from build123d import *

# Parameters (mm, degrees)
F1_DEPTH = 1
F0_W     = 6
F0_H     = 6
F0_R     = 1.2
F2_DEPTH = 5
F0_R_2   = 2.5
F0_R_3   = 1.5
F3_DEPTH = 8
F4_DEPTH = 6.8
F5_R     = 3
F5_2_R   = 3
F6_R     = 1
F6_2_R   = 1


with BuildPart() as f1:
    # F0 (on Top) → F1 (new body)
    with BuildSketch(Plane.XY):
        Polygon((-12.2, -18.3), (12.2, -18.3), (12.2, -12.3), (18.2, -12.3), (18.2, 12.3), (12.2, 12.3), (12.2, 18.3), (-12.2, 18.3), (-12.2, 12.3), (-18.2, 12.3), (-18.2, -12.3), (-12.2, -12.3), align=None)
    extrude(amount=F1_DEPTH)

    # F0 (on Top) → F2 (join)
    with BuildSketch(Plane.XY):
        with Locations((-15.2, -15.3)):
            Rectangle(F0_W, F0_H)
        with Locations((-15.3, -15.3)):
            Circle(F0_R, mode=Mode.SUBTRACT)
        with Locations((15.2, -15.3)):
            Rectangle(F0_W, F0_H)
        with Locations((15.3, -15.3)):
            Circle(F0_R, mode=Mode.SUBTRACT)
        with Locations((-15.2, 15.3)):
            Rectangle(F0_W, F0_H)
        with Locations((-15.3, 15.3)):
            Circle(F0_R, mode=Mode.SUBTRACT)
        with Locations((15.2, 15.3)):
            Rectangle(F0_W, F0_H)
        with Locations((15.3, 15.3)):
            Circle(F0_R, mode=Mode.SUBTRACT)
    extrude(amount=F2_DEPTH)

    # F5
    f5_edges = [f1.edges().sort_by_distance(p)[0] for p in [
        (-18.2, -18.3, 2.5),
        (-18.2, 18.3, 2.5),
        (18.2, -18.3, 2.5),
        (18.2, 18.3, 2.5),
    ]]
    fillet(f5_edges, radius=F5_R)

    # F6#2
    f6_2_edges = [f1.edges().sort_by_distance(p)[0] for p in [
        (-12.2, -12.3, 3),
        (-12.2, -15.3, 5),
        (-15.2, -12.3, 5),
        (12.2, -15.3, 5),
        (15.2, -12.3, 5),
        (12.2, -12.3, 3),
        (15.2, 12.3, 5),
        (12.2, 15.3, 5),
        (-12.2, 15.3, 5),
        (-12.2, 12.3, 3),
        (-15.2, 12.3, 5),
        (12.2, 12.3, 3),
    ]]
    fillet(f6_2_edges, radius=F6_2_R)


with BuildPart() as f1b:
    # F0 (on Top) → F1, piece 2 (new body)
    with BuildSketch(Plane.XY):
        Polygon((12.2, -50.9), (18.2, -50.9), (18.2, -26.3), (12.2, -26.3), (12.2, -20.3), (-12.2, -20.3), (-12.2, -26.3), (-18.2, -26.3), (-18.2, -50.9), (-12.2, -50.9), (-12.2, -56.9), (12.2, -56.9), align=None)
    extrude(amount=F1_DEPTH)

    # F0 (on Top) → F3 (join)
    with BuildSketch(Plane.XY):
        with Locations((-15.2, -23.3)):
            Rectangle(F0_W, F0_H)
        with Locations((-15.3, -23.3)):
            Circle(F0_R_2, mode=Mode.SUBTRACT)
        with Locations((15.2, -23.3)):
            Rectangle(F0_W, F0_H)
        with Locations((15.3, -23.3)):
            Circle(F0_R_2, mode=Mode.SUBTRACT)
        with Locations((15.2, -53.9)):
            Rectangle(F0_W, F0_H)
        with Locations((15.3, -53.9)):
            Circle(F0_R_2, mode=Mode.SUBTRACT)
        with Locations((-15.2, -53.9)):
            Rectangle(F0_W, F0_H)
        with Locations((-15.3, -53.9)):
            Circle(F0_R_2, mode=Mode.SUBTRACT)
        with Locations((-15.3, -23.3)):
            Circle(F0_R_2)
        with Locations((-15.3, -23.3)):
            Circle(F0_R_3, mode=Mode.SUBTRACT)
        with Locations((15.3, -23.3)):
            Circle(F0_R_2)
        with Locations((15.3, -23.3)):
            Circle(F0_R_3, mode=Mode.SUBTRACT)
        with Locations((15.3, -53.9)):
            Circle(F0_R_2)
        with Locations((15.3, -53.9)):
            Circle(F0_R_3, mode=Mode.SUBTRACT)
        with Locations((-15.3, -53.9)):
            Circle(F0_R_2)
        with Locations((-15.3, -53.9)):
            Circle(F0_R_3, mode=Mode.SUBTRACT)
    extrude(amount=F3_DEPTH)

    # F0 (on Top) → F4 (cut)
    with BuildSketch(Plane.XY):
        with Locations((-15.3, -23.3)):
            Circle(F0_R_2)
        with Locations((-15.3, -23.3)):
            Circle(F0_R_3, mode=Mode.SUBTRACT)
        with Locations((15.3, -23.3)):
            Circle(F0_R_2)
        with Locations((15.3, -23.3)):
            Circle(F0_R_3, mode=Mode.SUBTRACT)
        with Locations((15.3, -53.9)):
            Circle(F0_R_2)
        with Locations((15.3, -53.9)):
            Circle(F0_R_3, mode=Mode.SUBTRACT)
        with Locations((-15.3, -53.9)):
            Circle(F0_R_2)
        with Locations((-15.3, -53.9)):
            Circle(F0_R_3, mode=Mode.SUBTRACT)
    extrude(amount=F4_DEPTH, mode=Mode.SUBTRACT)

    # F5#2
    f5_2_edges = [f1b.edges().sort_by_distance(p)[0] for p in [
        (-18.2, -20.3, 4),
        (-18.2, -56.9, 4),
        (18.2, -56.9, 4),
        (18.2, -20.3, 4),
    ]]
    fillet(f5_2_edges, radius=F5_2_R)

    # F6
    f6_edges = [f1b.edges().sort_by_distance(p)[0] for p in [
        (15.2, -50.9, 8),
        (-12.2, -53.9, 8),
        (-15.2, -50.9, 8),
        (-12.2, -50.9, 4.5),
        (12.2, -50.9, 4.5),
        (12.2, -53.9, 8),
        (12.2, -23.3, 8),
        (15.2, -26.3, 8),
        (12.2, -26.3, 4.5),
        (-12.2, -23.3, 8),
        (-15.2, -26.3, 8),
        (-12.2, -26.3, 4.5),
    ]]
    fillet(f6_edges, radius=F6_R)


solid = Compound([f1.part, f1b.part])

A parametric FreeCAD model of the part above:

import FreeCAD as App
import Part
import Sketcher
from FreeCAD import Vector
Q = App.Units.Quantity


def edges_at(feature, points):
    """Names of the edges that pass closest to the given points."""
    edges = feature.Shape.Edges
    near = lambda p: min(range(len(edges)), key=lambda i: edges[i].distToShape(Part.Vertex(*p))[0])
    return sorted({f"Edge{near(p) + 1}" for p in points})

doc = App.newDocument("Part")
body = doc.addObject("PartDesign::Body", "Body")

# Sketch on XY plane
sketch1 = body.newObject("Sketcher::SketchObject", "Sketch")
sketch1.AttachmentSupport = (doc.getObject("XY_Plane"), [""])
sketch1.MapMode = "FlatFace"
sketch1.addGeometry(Part.LineSegment(Vector(-12, -18, 0), Vector(12, -18, 0)), False)
sketch1.addGeometry(Part.LineSegment(Vector(12, -18, 0), Vector(12, -12, 0)), False)
sketch1.addGeometry(Part.LineSegment(Vector(12, -12, 0), Vector(18, -12, 0)), False)
sketch1.addGeometry(Part.LineSegment(Vector(18, -12, 0), Vector(18, 12, 0)), False)
sketch1.addGeometry(Part.LineSegment(Vector(18, 12, 0), Vector(12, 12, 0)), False)
sketch1.addGeometry(Part.LineSegment(Vector(12, 12, 0), Vector(12, 18, 0)), False)
sketch1.addGeometry(Part.LineSegment(Vector(12, 18, 0), Vector(-12, 18, 0)), False)
sketch1.addGeometry(Part.LineSegment(Vector(-12, 18, 0), Vector(-12, 12, 0)), False)
sketch1.addGeometry(Part.LineSegment(Vector(-12, 12, 0), Vector(-18, 12, 0)), False)
sketch1.addGeometry(Part.LineSegment(Vector(-18, 12, 0), Vector(-18, -12, 0)), False)
sketch1.addGeometry(Part.LineSegment(Vector(-18, -12, 0), Vector(-12, -12, 0)), False)
sketch1.addGeometry(Part.LineSegment(Vector(-12, -12, 0), Vector(-12, -18, 0)), False)
sketch1.addConstraint(Sketcher.Constraint("Coincident", 0, 2, 1, 1))
sketch1.addConstraint(Sketcher.Constraint("Coincident", 1, 2, 2, 1))
sketch1.addConstraint(Sketcher.Constraint("Coincident", 2, 2, 3, 1))
sketch1.addConstraint(Sketcher.Constraint("Coincident", 3, 2, 4, 1))
sketch1.addConstraint(Sketcher.Constraint("Coincident", 4, 2, 5, 1))
sketch1.addConstraint(Sketcher.Constraint("Coincident", 5, 2, 6, 1))
sketch1.addConstraint(Sketcher.Constraint("Coincident", 6, 2, 7, 1))
sketch1.addConstraint(Sketcher.Constraint("Coincident", 7, 2, 8, 1))
sketch1.addConstraint(Sketcher.Constraint("Coincident", 8, 2, 9, 1))
sketch1.addConstraint(Sketcher.Constraint("Coincident", 9, 2, 10, 1))
sketch1.addConstraint(Sketcher.Constraint("Coincident", 10, 2, 11, 1))
sketch1.addConstraint(Sketcher.Constraint("Coincident", 11, 2, 0, 1))
sketch1.addConstraint(Sketcher.Constraint("Horizontal", 0))
sketch1.addConstraint(Sketcher.Constraint("Vertical", 1))
sketch1.addConstraint(Sketcher.Constraint("Horizontal", 2))
sketch1.addConstraint(Sketcher.Constraint("Vertical", 3))
sketch1.addConstraint(Sketcher.Constraint("Horizontal", 4))
sketch1.addConstraint(Sketcher.Constraint("Vertical", 5))
sketch1.addConstraint(Sketcher.Constraint("Horizontal", 6))
sketch1.addConstraint(Sketcher.Constraint("Vertical", 7))
sketch1.addConstraint(Sketcher.Constraint("Horizontal", 8))
sketch1.addConstraint(Sketcher.Constraint("Vertical", 9))
sketch1.addConstraint(Sketcher.Constraint("Horizontal", 10))
sketch1.addConstraint(Sketcher.Constraint("Vertical", 11))
sketch1.addConstraint(Sketcher.Constraint("Symmetric", 0, 2, 6, 2, -1, 1))
sketch1.addConstraint(Sketcher.Constraint("Symmetric", 2, 2, 8, 2, -1, 1))
sketch1.addConstraint(Sketcher.Constraint("Symmetric", 4, 2, 10, 2, -1, 1))
sketch1.addConstraint(Sketcher.Constraint("Symmetric", 4, 2, 7, 2, -2))
sketch1.addConstraint(Sketcher.Constraint("Equal", 10, 1))
sketch1.addConstraint(Sketcher.Constraint("DistanceX", 2, 1, 2, 2, Q("6 mm")))
sketch1.addConstraint(Sketcher.Constraint("DistanceX", 0, 1, 0, 2, Q("24.4 mm")))
sketch1.addConstraint(Sketcher.Constraint("DistanceY", 3, 1, 3, 2, Q("24.6 mm")))
pad1 = body.newObject("PartDesign::Pad", "Pad")
pad1.Profile = sketch1
pad1.Length = 1

# Sketch on XY plane
sketch2 = body.newObject("Sketcher::SketchObject", "Sketch001")
sketch2.AttachmentSupport = (doc.getObject("XY_Plane"), [""])
sketch2.MapMode = "FlatFace"
sketch2.addGeometry(Part.LineSegment(Vector(-18.2, -12.3, 0), Vector(-18.2, -18.3, 0)), False)
sketch2.addGeometry(Part.LineSegment(Vector(-18.2, -18.3, 0), Vector(-12.2, -18.3, 0)), False)
sketch2.addGeometry(Part.LineSegment(Vector(-12.2, -18.3, 0), Vector(-12.2, -12.3, 0)), False)
sketch2.addGeometry(Part.LineSegment(Vector(-12.2, -12.3, 0), Vector(-18.2, -12.3, 0)), False)
sketch2.addGeometry(Part.Circle(Vector(-15.3, -15.3, 0), Vector(0, 0, 1), 1.2), False)
sketch2.addGeometry(Part.LineSegment(Vector(12.2, -12.3, 0), Vector(12.2, -18.3, 0)), False)
sketch2.addGeometry(Part.LineSegment(Vector(12.2, -18.3, 0), Vector(18.2, -18.3, 0)), False)
sketch2.addGeometry(Part.LineSegment(Vector(18.2, -18.3, 0), Vector(18.2, -12.3, 0)), False)
sketch2.addGeometry(Part.LineSegment(Vector(18.2, -12.3, 0), Vector(12.2, -12.3, 0)), False)
sketch2.addGeometry(Part.Circle(Vector(15.3, -15.3, 0), Vector(0, 0, 1), 1.2), False)
sketch2.addGeometry(Part.LineSegment(Vector(-18.2, 18.3, 0), Vector(-18.2, 12.3, 0)), False)
sketch2.addGeometry(Part.LineSegment(Vector(-18.2, 12.3, 0), Vector(-12.2, 12.3, 0)), False)
sketch2.addGeometry(Part.LineSegment(Vector(-12.2, 12.3, 0), Vector(-12.2, 18.3, 0)), False)
sketch2.addGeometry(Part.LineSegment(Vector(-12.2, 18.3, 0), Vector(-18.2, 18.3, 0)), False)
sketch2.addGeometry(Part.Circle(Vector(-15.3, 15.3, 0), Vector(0, 0, 1), 1.2), False)
sketch2.addGeometry(Part.LineSegment(Vector(12.2, 18.3, 0), Vector(12.2, 12.3, 0)), False)
sketch2.addGeometry(Part.LineSegment(Vector(12.2, 12.3, 0), Vector(18.2, 12.3, 0)), False)
sketch2.addGeometry(Part.LineSegment(Vector(18.2, 12.3, 0), Vector(18.2, 18.3, 0)), False)
sketch2.addGeometry(Part.LineSegment(Vector(18.2, 18.3, 0), Vector(12.2, 18.3, 0)), False)
sketch2.addGeometry(Part.Circle(Vector(15.3, 15.3, 0), Vector(0, 0, 1), 1.2), False)
sketch2.addConstraint(Sketcher.Constraint("Coincident", 0, 2, 1, 1))
sketch2.addConstraint(Sketcher.Constraint("Coincident", 1, 2, 2, 1))
sketch2.addConstraint(Sketcher.Constraint("Coincident", 2, 2, 3, 1))
sketch2.addConstraint(Sketcher.Constraint("Coincident", 3, 2, 0, 1))
sketch2.addConstraint(Sketcher.Constraint("Coincident", 5, 2, 6, 1))
sketch2.addConstraint(Sketcher.Constraint("Coincident", 6, 2, 7, 1))
sketch2.addConstraint(Sketcher.Constraint("Coincident", 7, 2, 8, 1))
sketch2.addConstraint(Sketcher.Constraint("Coincident", 8, 2, 5, 1))
sketch2.addConstraint(Sketcher.Constraint("Coincident", 10, 2, 11, 1))
sketch2.addConstraint(Sketcher.Constraint("Coincident", 11, 2, 12, 1))
sketch2.addConstraint(Sketcher.Constraint("Coincident", 12, 2, 13, 1))
sketch2.addConstraint(Sketcher.Constraint("Coincident", 13, 2, 10, 1))
sketch2.addConstraint(Sketcher.Constraint("Coincident", 15, 2, 16, 1))
sketch2.addConstraint(Sketcher.Constraint("Coincident", 16, 2, 17, 1))
sketch2.addConstraint(Sketcher.Constraint("Coincident", 17, 2, 18, 1))
sketch2.addConstraint(Sketcher.Constraint("Coincident", 18, 2, 15, 1))
sketch2.addConstraint(Sketcher.Constraint("Vertical", 0))
sketch2.addConstraint(Sketcher.Constraint("Horizontal", 1))
sketch2.addConstraint(Sketcher.Constraint("Vertical", 2))
sketch2.addConstraint(Sketcher.Constraint("Horizontal", 3))
sketch2.addConstraint(Sketcher.Constraint("Vertical", 5))
sketch2.addConstraint(Sketcher.Constraint("Horizontal", 6))
sketch2.addConstraint(Sketcher.Constraint("Vertical", 7))
sketch2.addConstraint(Sketcher.Constraint("Horizontal", 8))
sketch2.addConstraint(Sketcher.Constraint("Vertical", 10))
sketch2.addConstraint(Sketcher.Constraint("Horizontal", 11))
sketch2.addConstraint(Sketcher.Constraint("Vertical", 12))
sketch2.addConstraint(Sketcher.Constraint("Horizontal", 13))
sketch2.addConstraint(Sketcher.Constraint("Vertical", 15))
sketch2.addConstraint(Sketcher.Constraint("Horizontal", 16))
sketch2.addConstraint(Sketcher.Constraint("Vertical", 17))
sketch2.addConstraint(Sketcher.Constraint("Horizontal", 18))
sketch2.addConstraint(Sketcher.Constraint("Equal", 4, 9))
sketch2.addConstraint(Sketcher.Constraint("Equal", 9, 14))
sketch2.addConstraint(Sketcher.Constraint("Equal", 14, 19))
sketch2.addConstraint(Sketcher.Constraint("Symmetric", 9, 3, 14, 3, -1, 1))
sketch2.addConstraint(Sketcher.Constraint("Symmetric", 4, 3, 19, 3, -1, 1))
sketch2.addConstraint(Sketcher.Constraint("Symmetric", 7, 2, 10, 2, -1, 1))
sketch2.addConstraint(Sketcher.Constraint("Symmetric", 5, 2, 12, 2, -1, 1))
sketch2.addConstraint(Sketcher.Constraint("Symmetric", 2, 2, 15, 2, -1, 1))
sketch2.addConstraint(Sketcher.Constraint("Symmetric", 0, 2, 17, 2, -1, 1))
sketch2.addConstraint(Sketcher.Constraint("Symmetric", 4, 3, 9, 3, -2))
sketch2.addConstraint(Sketcher.Constraint("Symmetric", 1, 2, 5, 2, -2))
sketch2.addConstraint(Sketcher.Constraint("Symmetric", 3, 2, 7, 2, -2))
sketch2.addConstraint(Sketcher.Constraint("Equal", 18, 0))
sketch2.addConstraint(Sketcher.Constraint("Diameter", 4, Q("2.4 mm")))
sketch2.addConstraint(Sketcher.Constraint("DistanceX", 1, 1, 1, 2, Q("6 mm")))
sketch2.addConstraint(Sketcher.Constraint("DistanceY", 0, 2, 4, 3, Q("3 mm")))
sketch2.addConstraint(Sketcher.Constraint("DistanceX", 4, 3, -1, 1, Q("15.3 mm")))
sketch2.addConstraint(Sketcher.Constraint("DistanceY", 4, 3, -1, 1, Q("15.3 mm")))
sketch2.addConstraint(Sketcher.Constraint("DistanceX", 0, 2, -1, 1, Q("18.2 mm")))
pad2 = body.newObject("PartDesign::Pad", "Pad001")
pad2.Profile = sketch2
pad2.Length = 5
doc.recompute()

fillet = body.newObject("PartDesign::Fillet", "Fillet")
fillet.Base = (pad2, edges_at(pad2, [
    (-18.2, -18.3, 2.5),
    (-18.2, 18.3, 2.5),
    (18.2, -18.3, 2.5),
    (18.2, 18.3, 2.5),
]))
fillet.Radius = 3
doc.recompute()

fillet2 = body.newObject("PartDesign::Fillet", "Fillet001")
fillet2.Base = (fillet, edges_at(fillet, [
    (-12.2, -12.3, 3),
    (-12.2, -15.3, 5),
    (-15.2, -12.3, 5),
    (12.2, -15.3, 5),
    (15.2, -12.3, 5),
    (12.2, -12.3, 3),
    (15.2, 12.3, 5),
    (12.2, 15.3, 5),
    (-12.2, 15.3, 5),
    (-12.2, 12.3, 3),
    (-15.2, 12.3, 5),
    (12.2, 12.3, 3),
]))
fillet2.Radius = 1
body2 = doc.addObject("PartDesign::Body", "Body001")

# Sketch on XY plane
sketch3 = body2.newObject("Sketcher::SketchObject", "Sketch002")
sketch3.AttachmentSupport = (doc.getObject("XY_Plane001"), [""])
sketch3.MapMode = "FlatFace"
sketch3.addGeometry(Part.LineSegment(Vector(12, -51, 0), Vector(18, -51, 0)), False)
sketch3.addGeometry(Part.LineSegment(Vector(18, -51, 0), Vector(18, -26, 0)), False)
sketch3.addGeometry(Part.LineSegment(Vector(18, -26, 0), Vector(12, -26, 0)), False)
sketch3.addGeometry(Part.LineSegment(Vector(12, -26, 0), Vector(12, -20, 0)), False)
sketch3.addGeometry(Part.LineSegment(Vector(12, -20, 0), Vector(-12, -20, 0)), False)
sketch3.addGeometry(Part.LineSegment(Vector(-12, -20, 0), Vector(-12, -26, 0)), False)
sketch3.addGeometry(Part.LineSegment(Vector(-12, -26, 0), Vector(-18, -26, 0)), False)
sketch3.addGeometry(Part.LineSegment(Vector(-18, -26, 0), Vector(-18, -51, 0)), False)
sketch3.addGeometry(Part.LineSegment(Vector(-18, -51, 0), Vector(-12, -51, 0)), False)
sketch3.addGeometry(Part.LineSegment(Vector(-12, -51, 0), Vector(-12, -57, 0)), False)
sketch3.addGeometry(Part.LineSegment(Vector(-12, -57, 0), Vector(12, -57, 0)), False)
sketch3.addGeometry(Part.LineSegment(Vector(12, -57, 0), Vector(12, -51, 0)), False)
sketch3.addConstraint(Sketcher.Constraint("Coincident", 0, 2, 1, 1))
sketch3.addConstraint(Sketcher.Constraint("Coincident", 1, 2, 2, 1))
sketch3.addConstraint(Sketcher.Constraint("Coincident", 2, 2, 3, 1))
sketch3.addConstraint(Sketcher.Constraint("Coincident", 3, 2, 4, 1))
sketch3.addConstraint(Sketcher.Constraint("Coincident", 4, 2, 5, 1))
sketch3.addConstraint(Sketcher.Constraint("Coincident", 5, 2, 6, 1))
sketch3.addConstraint(Sketcher.Constraint("Coincident", 6, 2, 7, 1))
sketch3.addConstraint(Sketcher.Constraint("Coincident", 7, 2, 8, 1))
sketch3.addConstraint(Sketcher.Constraint("Coincident", 8, 2, 9, 1))
sketch3.addConstraint(Sketcher.Constraint("Coincident", 9, 2, 10, 1))
sketch3.addConstraint(Sketcher.Constraint("Coincident", 10, 2, 11, 1))
sketch3.addConstraint(Sketcher.Constraint("Coincident", 11, 2, 0, 1))
sketch3.addConstraint(Sketcher.Constraint("Horizontal", 0))
sketch3.addConstraint(Sketcher.Constraint("Vertical", 1))
sketch3.addConstraint(Sketcher.Constraint("Horizontal", 2))
sketch3.addConstraint(Sketcher.Constraint("Vertical", 3))
sketch3.addConstraint(Sketcher.Constraint("Horizontal", 4))
sketch3.addConstraint(Sketcher.Constraint("Vertical", 5))
sketch3.addConstraint(Sketcher.Constraint("Horizontal", 6))
sketch3.addConstraint(Sketcher.Constraint("Vertical", 7))
sketch3.addConstraint(Sketcher.Constraint("Horizontal", 8))
sketch3.addConstraint(Sketcher.Constraint("Vertical", 9))
sketch3.addConstraint(Sketcher.Constraint("Horizontal", 10))
sketch3.addConstraint(Sketcher.Constraint("Vertical", 11))
sketch3.addConstraint(Sketcher.Constraint("Symmetric", 2, 2, 5, 2, -2))
sketch3.addConstraint(Sketcher.Constraint("Symmetric", 0, 2, 7, 2, -2))
sketch3.addConstraint(Sketcher.Constraint("Vertical", 5, 2, 8, 2))
sketch3.addConstraint(Sketcher.Constraint("Vertical", 3, 2, 10, 2))
sketch3.addConstraint(Sketcher.Constraint("Equal", 8, 3))
sketch3.addConstraint(Sketcher.Constraint("Equal", 5, 9))
sketch3.addConstraint(Sketcher.Constraint("DistanceX", 0, 1, 0, 2, Q("6 mm")))
sketch3.addConstraint(Sketcher.Constraint("DistanceX", 4, 2, 4, 1, Q("24.4 mm")))
sketch3.addConstraint(Sketcher.Constraint("DistanceY", 1, 1, 1, 2, Q("24.6 mm")))
sketch3.addConstraint(Sketcher.Constraint("DistanceY", 0, 2, -1, 1, Q("50.9 mm")))
pad3 = body2.newObject("PartDesign::Pad", "Pad002")
pad3.Profile = sketch3
pad3.Length = 1

# Sketch on XY plane
sketch4 = body2.newObject("Sketcher::SketchObject", "Sketch003")
sketch4.AttachmentSupport = (doc.getObject("XY_Plane001"), [""])
sketch4.MapMode = "FlatFace"
sketch4.addGeometry(Part.LineSegment(Vector(-18.2, -20.3, 0), Vector(-18.2, -26.3, 0)), False)
sketch4.addGeometry(Part.LineSegment(Vector(-18.2, -26.3, 0), Vector(-12.2, -26.3, 0)), False)
sketch4.addGeometry(Part.LineSegment(Vector(-12.2, -26.3, 0), Vector(-12.2, -20.3, 0)), False)
sketch4.addGeometry(Part.LineSegment(Vector(-12.2, -20.3, 0), Vector(-18.2, -20.3, 0)), False)
sketch4.addGeometry(Part.Circle(Vector(-15.3, -23.3, 0), Vector(0, 0, 1), 1.5), False)
sketch4.addGeometry(Part.LineSegment(Vector(12.2, -20.3, 0), Vector(12.2, -26.3, 0)), False)
sketch4.addGeometry(Part.LineSegment(Vector(12.2, -26.3, 0), Vector(18.2, -26.3, 0)), False)
sketch4.addGeometry(Part.LineSegment(Vector(18.2, -26.3, 0), Vector(18.2, -20.3, 0)), False)
sketch4.addGeometry(Part.LineSegment(Vector(18.2, -20.3, 0), Vector(12.2, -20.3, 0)), False)
sketch4.addGeometry(Part.Circle(Vector(15.3, -23.3, 0), Vector(0, 0, 1), 1.5), False)
sketch4.addGeometry(Part.LineSegment(Vector(12.2, -50.9, 0), Vector(12.2, -56.9, 0)), False)
sketch4.addGeometry(Part.LineSegment(Vector(12.2, -56.9, 0), Vector(18.2, -56.9, 0)), False)
sketch4.addGeometry(Part.LineSegment(Vector(18.2, -56.9, 0), Vector(18.2, -50.9, 0)), False)
sketch4.addGeometry(Part.LineSegment(Vector(18.2, -50.9, 0), Vector(12.2, -50.9, 0)), False)
sketch4.addGeometry(Part.Circle(Vector(15.3, -53.9, 0), Vector(0, 0, 1), 1.5), False)
sketch4.addGeometry(Part.LineSegment(Vector(-18.2, -50.9, 0), Vector(-18.2, -56.9, 0)), False)
sketch4.addGeometry(Part.LineSegment(Vector(-18.2, -56.9, 0), Vector(-12.2, -56.9, 0)), False)
sketch4.addGeometry(Part.LineSegment(Vector(-12.2, -56.9, 0), Vector(-12.2, -50.9, 0)), False)
sketch4.addGeometry(Part.LineSegment(Vector(-12.2, -50.9, 0), Vector(-18.2, -50.9, 0)), False)
sketch4.addGeometry(Part.Circle(Vector(-15.3, -53.9, 0), Vector(0, 0, 1), 1.5), False)
sketch4.addConstraint(Sketcher.Constraint("Coincident", 0, 2, 1, 1))
sketch4.addConstraint(Sketcher.Constraint("Coincident", 1, 2, 2, 1))
sketch4.addConstraint(Sketcher.Constraint("Coincident", 2, 2, 3, 1))
sketch4.addConstraint(Sketcher.Constraint("Coincident", 3, 2, 0, 1))
sketch4.addConstraint(Sketcher.Constraint("Coincident", 5, 2, 6, 1))
sketch4.addConstraint(Sketcher.Constraint("Coincident", 6, 2, 7, 1))
sketch4.addConstraint(Sketcher.Constraint("Coincident", 7, 2, 8, 1))
sketch4.addConstraint(Sketcher.Constraint("Coincident", 8, 2, 5, 1))
sketch4.addConstraint(Sketcher.Constraint("Coincident", 10, 2, 11, 1))
sketch4.addConstraint(Sketcher.Constraint("Coincident", 11, 2, 12, 1))
sketch4.addConstraint(Sketcher.Constraint("Coincident", 12, 2, 13, 1))
sketch4.addConstraint(Sketcher.Constraint("Coincident", 13, 2, 10, 1))
sketch4.addConstraint(Sketcher.Constraint("Coincident", 15, 2, 16, 1))
sketch4.addConstraint(Sketcher.Constraint("Coincident", 16, 2, 17, 1))
sketch4.addConstraint(Sketcher.Constraint("Coincident", 17, 2, 18, 1))
sketch4.addConstraint(Sketcher.Constraint("Coincident", 18, 2, 15, 1))
sketch4.addConstraint(Sketcher.Constraint("Vertical", 0))
sketch4.addConstraint(Sketcher.Constraint("Horizontal", 1))
sketch4.addConstraint(Sketcher.Constraint("Vertical", 2))
sketch4.addConstraint(Sketcher.Constraint("Horizontal", 3))
sketch4.addConstraint(Sketcher.Constraint("Vertical", 5))
sketch4.addConstraint(Sketcher.Constraint("Horizontal", 6))
sketch4.addConstraint(Sketcher.Constraint("Vertical", 7))
sketch4.addConstraint(Sketcher.Constraint("Horizontal", 8))
sketch4.addConstraint(Sketcher.Constraint("Vertical", 10))
sketch4.addConstraint(Sketcher.Constraint("Horizontal", 11))
sketch4.addConstraint(Sketcher.Constraint("Vertical", 12))
sketch4.addConstraint(Sketcher.Constraint("Horizontal", 13))
sketch4.addConstraint(Sketcher.Constraint("Vertical", 15))
sketch4.addConstraint(Sketcher.Constraint("Horizontal", 16))
sketch4.addConstraint(Sketcher.Constraint("Vertical", 17))
sketch4.addConstraint(Sketcher.Constraint("Horizontal", 18))
sketch4.addConstraint(Sketcher.Constraint("Equal", 4, 9))
sketch4.addConstraint(Sketcher.Constraint("Equal", 9, 14))
sketch4.addConstraint(Sketcher.Constraint("Equal", 14, 19))
sketch4.addConstraint(Sketcher.Constraint("Symmetric", 4, 3, 9, 3, -2))
sketch4.addConstraint(Sketcher.Constraint("Symmetric", 14, 3, 19, 3, -2))
sketch4.addConstraint(Sketcher.Constraint("Symmetric", 1, 2, 5, 2, -2))
sketch4.addConstraint(Sketcher.Constraint("Symmetric", 3, 2, 7, 2, -2))
sketch4.addConstraint(Sketcher.Constraint("Symmetric", 11, 2, 15, 2, -2))
sketch4.addConstraint(Sketcher.Constraint("Symmetric", 13, 2, 17, 2, -2))
sketch4.addConstraint(Sketcher.Constraint("Vertical", 9, 3, 14, 3))
sketch4.addConstraint(Sketcher.Constraint("Vertical", 8, 2, 10, 2))
sketch4.addConstraint(Sketcher.Constraint("Vertical", 7, 2, 11, 2))
sketch4.addConstraint(Sketcher.Constraint("Equal", 18, 0))
sketch4.addConstraint(Sketcher.Constraint("Equal", 7, 10))
sketch4.addConstraint(Sketcher.Constraint("Diameter", 4, Q("3 mm")))
sketch4.addConstraint(Sketcher.Constraint("DistanceX", 1, 1, 1, 2, Q("6 mm")))
sketch4.addConstraint(Sketcher.Constraint("DistanceY", 0, 2, 4, 3, Q("3 mm")))
sketch4.addConstraint(Sketcher.Constraint("DistanceY", 10, 2, 14, 3, Q("3 mm")))
sketch4.addConstraint(Sketcher.Constraint("DistanceX", 4, 3, -1, 1, Q("15.3 mm")))
sketch4.addConstraint(Sketcher.Constraint("DistanceY", 4, 3, -1, 1, Q("23.3 mm")))
sketch4.addConstraint(Sketcher.Constraint("DistanceY", 14, 3, -1, 1, Q("53.9 mm")))
sketch4.addConstraint(Sketcher.Constraint("DistanceX", 0, 2, -1, 1, Q("18.2 mm")))
pad4 = body2.newObject("PartDesign::Pad", "Pad003")
pad4.Profile = sketch4
pad4.Length = 8

# Sketch on XY plane
sketch5 = body2.newObject("Sketcher::SketchObject", "Sketch004")
sketch5.AttachmentSupport = (doc.getObject("XY_Plane001"), [""])
sketch5.MapMode = "FlatFace"
sketch5.addGeometry(Part.Circle(Vector(-15.3, -23.3, 0), Vector(0, 0, 1), 2.5), False)
sketch5.addGeometry(Part.Circle(Vector(-15.3, -23.3, 0), Vector(0, 0, 1), 1.5), False)
sketch5.addGeometry(Part.Circle(Vector(15.3, -23.3, 0), Vector(0, 0, 1), 2.5), False)
sketch5.addGeometry(Part.Circle(Vector(15.3, -23.3, 0), Vector(0, 0, 1), 1.5), False)
sketch5.addGeometry(Part.Circle(Vector(15.3, -53.9, 0), Vector(0, 0, 1), 2.5), False)
sketch5.addGeometry(Part.Circle(Vector(15.3, -53.9, 0), Vector(0, 0, 1), 1.5), False)
sketch5.addGeometry(Part.Circle(Vector(-15.3, -53.9, 0), Vector(0, 0, 1), 2.5), False)
sketch5.addGeometry(Part.Circle(Vector(-15.3, -53.9, 0), Vector(0, 0, 1), 1.5), False)
sketch5.addConstraint(Sketcher.Constraint("Coincident", 1, 3, 0, 3))
sketch5.addConstraint(Sketcher.Constraint("Coincident", 3, 3, 2, 3))
sketch5.addConstraint(Sketcher.Constraint("Coincident", 5, 3, 4, 3))
sketch5.addConstraint(Sketcher.Constraint("Coincident", 7, 3, 6, 3))
sketch5.addConstraint(Sketcher.Constraint("Equal", 0, 2))
sketch5.addConstraint(Sketcher.Constraint("Equal", 1, 3))
sketch5.addConstraint(Sketcher.Constraint("Equal", 2, 4))
sketch5.addConstraint(Sketcher.Constraint("Equal", 3, 5))
sketch5.addConstraint(Sketcher.Constraint("Equal", 4, 6))
sketch5.addConstraint(Sketcher.Constraint("Equal", 5, 7))
sketch5.addConstraint(Sketcher.Constraint("Symmetric", 0, 3, 2, 3, -2))
sketch5.addConstraint(Sketcher.Constraint("Symmetric", 4, 3, 6, 3, -2))
sketch5.addConstraint(Sketcher.Constraint("Vertical", 3, 3, 4, 3))
sketch5.addConstraint(Sketcher.Constraint("Diameter", 0, Q("5 mm")))
sketch5.addConstraint(Sketcher.Constraint("Diameter", 1, Q("3 mm")))
sketch5.addConstraint(Sketcher.Constraint("DistanceX", 0, 3, -1, 1, Q("15.3 mm")))
sketch5.addConstraint(Sketcher.Constraint("DistanceY", 0, 3, -1, 1, Q("23.3 mm")))
sketch5.addConstraint(Sketcher.Constraint("DistanceY", 4, 3, -1, 1, Q("53.9 mm")))
pocket1 = body2.newObject("PartDesign::Pocket", "Pocket")
pocket1.Profile = sketch5
pocket1.Length = 6.8
pocket1.Reversed = True
doc.recompute()

fillet3 = body2.newObject("PartDesign::Fillet", "Fillet002")
fillet3.Base = (pocket1, edges_at(pocket1, [
    (-18.2, -20.3, 4),
    (-18.2, -56.9, 4),
    (18.2, -56.9, 4),
    (18.2, -20.3, 4),
]))
fillet3.Radius = 3
doc.recompute()

fillet4 = body2.newObject("PartDesign::Fillet", "Fillet003")
fillet4.Base = (fillet3, edges_at(fillet3, [
    (15.2, -50.9, 8),
    (-12.2, -53.9, 8),
    (-15.2, -50.9, 8),
    (-12.2, -50.9, 4.5),
    (12.2, -50.9, 4.5),
    (12.2, -53.9, 8),
    (12.2, -23.3, 8),
    (15.2, -26.3, 8),
    (12.2, -26.3, 4.5),
    (-12.2, -23.3, 8),
    (-15.2, -26.3, 8),
    (-12.2, -26.3, 4.5),
]))
fillet4.Radius = 1

doc.recompute()
